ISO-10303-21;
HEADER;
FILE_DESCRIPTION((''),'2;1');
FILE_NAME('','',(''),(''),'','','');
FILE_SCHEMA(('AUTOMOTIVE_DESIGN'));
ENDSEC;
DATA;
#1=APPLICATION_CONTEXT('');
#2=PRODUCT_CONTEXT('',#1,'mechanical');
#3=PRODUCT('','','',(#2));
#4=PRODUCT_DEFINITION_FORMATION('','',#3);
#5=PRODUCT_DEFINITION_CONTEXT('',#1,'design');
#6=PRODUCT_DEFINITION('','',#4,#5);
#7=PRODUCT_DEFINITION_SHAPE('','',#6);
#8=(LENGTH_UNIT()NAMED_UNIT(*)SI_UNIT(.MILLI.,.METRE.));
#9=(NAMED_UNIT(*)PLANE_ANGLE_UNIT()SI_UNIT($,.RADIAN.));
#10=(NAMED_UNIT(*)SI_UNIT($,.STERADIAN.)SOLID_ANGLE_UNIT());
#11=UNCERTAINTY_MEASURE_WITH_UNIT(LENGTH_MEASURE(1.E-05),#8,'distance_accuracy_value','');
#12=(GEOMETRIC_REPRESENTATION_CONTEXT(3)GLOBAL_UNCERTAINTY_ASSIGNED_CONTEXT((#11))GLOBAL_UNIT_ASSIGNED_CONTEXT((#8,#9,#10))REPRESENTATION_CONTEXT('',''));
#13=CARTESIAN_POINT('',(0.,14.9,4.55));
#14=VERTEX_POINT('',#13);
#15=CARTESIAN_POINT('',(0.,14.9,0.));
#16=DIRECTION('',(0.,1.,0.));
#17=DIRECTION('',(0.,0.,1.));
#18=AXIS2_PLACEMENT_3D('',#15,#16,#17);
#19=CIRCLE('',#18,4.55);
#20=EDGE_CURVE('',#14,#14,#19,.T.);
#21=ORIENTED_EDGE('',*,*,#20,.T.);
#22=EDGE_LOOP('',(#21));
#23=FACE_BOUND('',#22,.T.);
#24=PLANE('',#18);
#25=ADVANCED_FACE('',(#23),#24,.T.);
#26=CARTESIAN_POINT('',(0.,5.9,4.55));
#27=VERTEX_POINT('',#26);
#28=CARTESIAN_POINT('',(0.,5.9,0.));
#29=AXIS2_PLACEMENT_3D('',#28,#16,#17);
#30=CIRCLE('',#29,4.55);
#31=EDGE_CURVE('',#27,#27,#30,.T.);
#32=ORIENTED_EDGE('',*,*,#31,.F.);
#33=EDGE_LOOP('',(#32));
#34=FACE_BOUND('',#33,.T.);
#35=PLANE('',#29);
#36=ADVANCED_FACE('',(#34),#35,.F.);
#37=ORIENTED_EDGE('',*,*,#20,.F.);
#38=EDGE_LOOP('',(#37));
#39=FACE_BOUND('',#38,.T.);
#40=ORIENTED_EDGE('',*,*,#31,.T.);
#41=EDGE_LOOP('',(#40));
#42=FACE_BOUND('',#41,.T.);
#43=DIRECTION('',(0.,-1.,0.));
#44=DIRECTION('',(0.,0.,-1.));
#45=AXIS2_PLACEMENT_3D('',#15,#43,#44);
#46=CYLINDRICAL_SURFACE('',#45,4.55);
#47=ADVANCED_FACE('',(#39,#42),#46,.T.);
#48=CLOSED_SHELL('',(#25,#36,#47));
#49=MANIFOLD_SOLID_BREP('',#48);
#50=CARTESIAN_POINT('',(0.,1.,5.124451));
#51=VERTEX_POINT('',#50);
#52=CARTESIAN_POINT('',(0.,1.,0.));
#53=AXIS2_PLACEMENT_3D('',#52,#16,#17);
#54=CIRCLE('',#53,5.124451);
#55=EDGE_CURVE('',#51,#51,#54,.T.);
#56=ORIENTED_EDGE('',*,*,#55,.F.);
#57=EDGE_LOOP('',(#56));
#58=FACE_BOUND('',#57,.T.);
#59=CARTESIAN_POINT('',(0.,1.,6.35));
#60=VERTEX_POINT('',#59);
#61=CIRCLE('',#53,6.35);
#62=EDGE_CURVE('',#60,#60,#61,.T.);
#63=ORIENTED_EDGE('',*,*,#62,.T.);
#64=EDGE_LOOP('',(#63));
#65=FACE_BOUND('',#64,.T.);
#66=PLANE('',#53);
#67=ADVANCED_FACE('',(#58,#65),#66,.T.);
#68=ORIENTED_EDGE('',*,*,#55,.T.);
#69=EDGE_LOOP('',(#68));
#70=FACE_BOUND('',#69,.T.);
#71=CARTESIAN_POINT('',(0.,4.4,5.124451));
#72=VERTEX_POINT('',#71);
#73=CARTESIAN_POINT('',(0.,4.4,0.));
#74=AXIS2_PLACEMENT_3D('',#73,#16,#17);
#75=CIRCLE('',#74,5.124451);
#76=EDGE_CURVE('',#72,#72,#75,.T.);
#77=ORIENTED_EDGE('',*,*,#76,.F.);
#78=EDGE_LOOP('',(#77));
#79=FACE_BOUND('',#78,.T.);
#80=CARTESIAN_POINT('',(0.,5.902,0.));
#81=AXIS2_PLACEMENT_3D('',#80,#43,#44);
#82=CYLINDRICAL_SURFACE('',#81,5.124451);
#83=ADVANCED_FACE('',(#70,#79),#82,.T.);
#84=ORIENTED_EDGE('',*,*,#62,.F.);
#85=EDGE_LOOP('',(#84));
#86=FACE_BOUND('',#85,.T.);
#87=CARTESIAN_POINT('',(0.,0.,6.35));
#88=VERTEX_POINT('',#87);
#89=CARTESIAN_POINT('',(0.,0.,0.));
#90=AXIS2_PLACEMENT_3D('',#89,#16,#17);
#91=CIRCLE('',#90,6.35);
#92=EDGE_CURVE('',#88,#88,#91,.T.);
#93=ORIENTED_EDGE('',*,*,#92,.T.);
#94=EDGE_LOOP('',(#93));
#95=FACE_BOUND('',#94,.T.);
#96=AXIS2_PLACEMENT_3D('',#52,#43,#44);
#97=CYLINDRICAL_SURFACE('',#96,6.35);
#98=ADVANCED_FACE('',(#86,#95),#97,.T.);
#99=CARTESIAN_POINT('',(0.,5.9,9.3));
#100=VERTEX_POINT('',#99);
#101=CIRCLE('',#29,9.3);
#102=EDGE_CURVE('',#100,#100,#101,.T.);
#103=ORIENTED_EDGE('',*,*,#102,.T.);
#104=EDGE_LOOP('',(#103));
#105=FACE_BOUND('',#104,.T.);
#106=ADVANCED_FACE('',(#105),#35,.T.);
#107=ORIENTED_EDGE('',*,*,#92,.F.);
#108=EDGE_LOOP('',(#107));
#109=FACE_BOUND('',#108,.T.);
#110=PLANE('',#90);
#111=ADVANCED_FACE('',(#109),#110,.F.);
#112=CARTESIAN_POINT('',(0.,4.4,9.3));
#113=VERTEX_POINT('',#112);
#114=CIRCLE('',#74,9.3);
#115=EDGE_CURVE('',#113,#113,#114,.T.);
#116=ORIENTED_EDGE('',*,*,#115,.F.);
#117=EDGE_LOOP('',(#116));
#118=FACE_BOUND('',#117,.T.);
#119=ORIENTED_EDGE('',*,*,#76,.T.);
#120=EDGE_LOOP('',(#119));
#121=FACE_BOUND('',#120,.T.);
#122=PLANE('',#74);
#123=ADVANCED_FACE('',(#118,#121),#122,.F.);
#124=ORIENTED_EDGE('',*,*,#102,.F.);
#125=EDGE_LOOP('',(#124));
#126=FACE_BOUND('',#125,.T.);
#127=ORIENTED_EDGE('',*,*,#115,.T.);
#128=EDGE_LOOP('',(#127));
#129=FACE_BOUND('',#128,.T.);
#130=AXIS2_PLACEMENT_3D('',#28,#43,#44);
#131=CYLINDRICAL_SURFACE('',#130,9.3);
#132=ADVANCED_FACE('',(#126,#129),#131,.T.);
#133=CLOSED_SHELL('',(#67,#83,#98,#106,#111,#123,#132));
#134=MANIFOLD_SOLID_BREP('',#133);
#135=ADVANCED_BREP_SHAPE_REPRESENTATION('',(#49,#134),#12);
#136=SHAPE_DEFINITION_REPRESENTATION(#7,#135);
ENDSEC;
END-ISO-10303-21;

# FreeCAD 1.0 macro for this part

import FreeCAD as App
import Part
import Sketcher

V = App.Vector
Q = App.Units.Quantity

doc = App.newDocument("Part")
body = doc.addObject("PartDesign::Body", "Body")

# Sketch on XZ plane
sketch1 = body.newObject("Sketcher::SketchObject", "Sketch")
sketch1.AttachmentSupport = (doc.getObject("XZ_Plane"), [""])
sketch1.MapMode = "FlatFace"
sketch1.addGeometry(Part.Circle(V(0, 0, 0), V(0, 0, 1), 6.35), False)
sketch1.addConstraint([
    Sketcher.Constraint("Coincident", 0, 3, -1, 1),
    Sketcher.Constraint("Diameter", 0, Q("12.7 mm")),
])
pad1 = body.newObject("PartDesign::Pad", "Pad")
pad1.Profile = sketch1
pad1.Length = 1
pad1.Reversed = True
body2 = doc.addObject("PartDesign::Body", "Body001")
body2.AllowCompound = True

# Sketch on XZ plane
sketch2 = body2.newObject("Sketcher::SketchObject", "Sketch001")
sketch2.AttachmentSupport = (doc.getObject("XZ_Plane001"), [""])
sketch2.MapMode = "FlatFace"
sketch2.AttachmentOffset = App.Placement(V(0, 0, -4.4), App.Rotation())
sketch2.addGeometry(Part.Circle(V(0, 0, 0), V(0, 0, 1), 9.3), False)
sketch2.addConstraint([
    Sketcher.Constraint("Coincident", 0, 3, -1, 1),
    Sketcher.Constraint("Diameter", 0, Q("18.6 mm")),
])
pad2 = body2.newObject("PartDesign::Pad", "Pad001")
pad2.Profile = sketch2
pad2.Length = 1.5
pad2.Reversed = True
doc.recompute()

boolean = body2.newObject("PartDesign::Boolean", "Boolean")
boolean.Type = "Fuse"
boolean.addObjects([body])

# Sketch on XZ plane
sketch3 = body2.newObject("Sketcher::SketchObject", "Sketch002")
sketch3.AttachmentSupport = (doc.getObject("XZ_Plane001"), [""])
sketch3.MapMode = "FlatFace"
sketch3.AttachmentOffset = App.Placement(V(0, 0, -1), App.Rotation())
sketch3.addGeometry(Part.Circle(V(0, 0, 0), V(0, 0, 1), 5.124451), False)
sketch3.addConstraint([
    Sketcher.Constraint("Coincident", 0, 3, -1, 1),
    Sketcher.Constraint("Diameter", 0, Q("10.248902 mm")),
])
pad3 = body2.newObject("PartDesign::Pad", "Pad002")
pad3.Profile = sketch3
pad3.Type = "UpToFirst"
pad3.Reversed = True
body3 = doc.addObject("PartDesign::Body", "Body002")

# Sketch on XZ plane
sketch4 = body3.newObject("Sketcher::SketchObject", "Sketch003")
sketch4.AttachmentSupport = (doc.getObject("XZ_Plane002"), [""])
sketch4.MapMode = "FlatFace"
sketch4.AttachmentOffset = App.Placement(V(0, 0, -5.9), App.Rotation())
sketch4.addGeometry(Part.Circle(V(0, 0, 0), V(0, 0, 1), 4.55), False)
sketch4.addConstraint([
    Sketcher.Constraint("Coincident", 0, 3, -1, 1),
    Sketcher.Constraint("Diameter", 0, Q("9.1 mm")),
])
pad4 = body3.newObject("PartDesign::Pad", "Pad003")
pad4.Profile = sketch4
pad4.Length = 9
pad4.Reversed = True

doc.recompute()
